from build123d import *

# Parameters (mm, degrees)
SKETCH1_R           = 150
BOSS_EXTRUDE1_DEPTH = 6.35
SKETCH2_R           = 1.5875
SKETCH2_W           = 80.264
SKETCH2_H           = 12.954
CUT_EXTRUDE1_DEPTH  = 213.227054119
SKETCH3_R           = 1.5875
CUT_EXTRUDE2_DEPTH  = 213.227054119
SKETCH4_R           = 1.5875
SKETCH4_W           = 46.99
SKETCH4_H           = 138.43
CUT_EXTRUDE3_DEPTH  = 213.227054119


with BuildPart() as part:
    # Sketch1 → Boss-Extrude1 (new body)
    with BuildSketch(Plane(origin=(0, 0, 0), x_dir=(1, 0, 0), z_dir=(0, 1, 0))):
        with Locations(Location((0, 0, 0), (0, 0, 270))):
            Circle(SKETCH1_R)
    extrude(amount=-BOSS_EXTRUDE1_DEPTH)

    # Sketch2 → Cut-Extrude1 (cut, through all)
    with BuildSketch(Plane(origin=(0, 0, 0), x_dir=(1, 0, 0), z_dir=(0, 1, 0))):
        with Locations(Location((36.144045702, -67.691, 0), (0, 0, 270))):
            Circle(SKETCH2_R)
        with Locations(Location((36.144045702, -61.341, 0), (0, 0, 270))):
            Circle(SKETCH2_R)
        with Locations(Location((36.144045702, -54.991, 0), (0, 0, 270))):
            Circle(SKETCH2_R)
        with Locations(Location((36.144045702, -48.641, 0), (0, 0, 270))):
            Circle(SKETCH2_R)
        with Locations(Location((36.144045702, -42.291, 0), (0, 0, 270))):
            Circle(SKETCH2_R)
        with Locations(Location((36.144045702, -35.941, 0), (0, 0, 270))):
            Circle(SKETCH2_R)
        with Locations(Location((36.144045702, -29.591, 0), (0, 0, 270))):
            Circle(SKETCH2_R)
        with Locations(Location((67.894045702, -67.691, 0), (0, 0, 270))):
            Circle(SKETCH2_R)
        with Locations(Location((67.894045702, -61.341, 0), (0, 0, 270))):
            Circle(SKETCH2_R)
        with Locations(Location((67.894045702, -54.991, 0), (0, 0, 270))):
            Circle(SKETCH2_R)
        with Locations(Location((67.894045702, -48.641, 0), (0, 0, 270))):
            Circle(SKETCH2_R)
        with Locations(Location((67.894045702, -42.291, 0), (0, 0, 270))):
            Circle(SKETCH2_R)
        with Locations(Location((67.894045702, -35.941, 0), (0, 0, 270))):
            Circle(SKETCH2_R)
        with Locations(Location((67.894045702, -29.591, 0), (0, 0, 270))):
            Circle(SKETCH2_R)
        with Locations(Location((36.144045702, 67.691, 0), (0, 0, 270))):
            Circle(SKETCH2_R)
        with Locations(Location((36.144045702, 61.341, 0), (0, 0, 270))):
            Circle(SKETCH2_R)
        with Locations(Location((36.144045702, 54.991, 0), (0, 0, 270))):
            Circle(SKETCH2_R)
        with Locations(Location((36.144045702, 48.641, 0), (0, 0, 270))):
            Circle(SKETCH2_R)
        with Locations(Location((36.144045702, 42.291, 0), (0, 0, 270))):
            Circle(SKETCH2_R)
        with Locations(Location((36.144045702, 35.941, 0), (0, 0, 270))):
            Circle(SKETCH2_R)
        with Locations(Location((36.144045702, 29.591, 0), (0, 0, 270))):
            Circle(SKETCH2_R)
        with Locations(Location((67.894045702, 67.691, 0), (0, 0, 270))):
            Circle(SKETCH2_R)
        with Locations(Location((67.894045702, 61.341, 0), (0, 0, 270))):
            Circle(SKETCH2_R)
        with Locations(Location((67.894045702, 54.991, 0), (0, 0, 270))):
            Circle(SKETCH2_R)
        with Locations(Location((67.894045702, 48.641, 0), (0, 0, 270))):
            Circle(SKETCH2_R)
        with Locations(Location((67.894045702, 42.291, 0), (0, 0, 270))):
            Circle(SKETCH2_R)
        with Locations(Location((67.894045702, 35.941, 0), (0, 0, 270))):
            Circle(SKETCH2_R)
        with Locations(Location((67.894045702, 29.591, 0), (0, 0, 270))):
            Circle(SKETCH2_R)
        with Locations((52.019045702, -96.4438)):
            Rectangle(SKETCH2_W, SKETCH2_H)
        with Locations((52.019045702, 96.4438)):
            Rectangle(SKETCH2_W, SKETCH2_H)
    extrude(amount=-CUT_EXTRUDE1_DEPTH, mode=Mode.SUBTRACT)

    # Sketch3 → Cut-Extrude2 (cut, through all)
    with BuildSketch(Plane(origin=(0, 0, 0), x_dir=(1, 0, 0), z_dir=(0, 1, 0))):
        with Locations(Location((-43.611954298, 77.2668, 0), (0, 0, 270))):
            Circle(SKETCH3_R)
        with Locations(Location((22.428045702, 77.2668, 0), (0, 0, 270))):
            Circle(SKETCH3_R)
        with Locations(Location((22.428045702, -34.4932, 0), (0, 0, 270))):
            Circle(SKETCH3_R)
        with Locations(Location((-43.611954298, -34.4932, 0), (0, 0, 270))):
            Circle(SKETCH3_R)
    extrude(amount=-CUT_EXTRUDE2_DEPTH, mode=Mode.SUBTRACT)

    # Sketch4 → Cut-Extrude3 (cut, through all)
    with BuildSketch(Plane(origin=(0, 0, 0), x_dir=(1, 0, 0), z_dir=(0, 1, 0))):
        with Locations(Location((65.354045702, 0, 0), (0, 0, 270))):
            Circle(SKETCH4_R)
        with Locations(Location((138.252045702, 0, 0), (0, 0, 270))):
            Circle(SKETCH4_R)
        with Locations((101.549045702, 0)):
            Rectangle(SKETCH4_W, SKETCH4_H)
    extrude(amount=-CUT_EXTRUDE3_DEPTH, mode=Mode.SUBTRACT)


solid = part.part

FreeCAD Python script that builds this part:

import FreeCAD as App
import Part
import Sketcher
from FreeCAD import Vector
Q = App.Units.Quantity


def add_polygon(sketch, points):
    """Adds a closed chain of lines whose ends are joined by coincident constraints."""
    first, n = sketch.GeometryCount, len(points)
    for a, b in zip(points, points[1:] + points[:1]):
        sketch.addGeometry(Part.LineSegment(App.Vector(*a, 0), App.Vector(*b, 0)), False)
    for i in range(n):
        sketch.addConstraint(Sketcher.Constraint("Coincident", first + i, 2, first + (i + 1) % n, 1))

doc = App.newDocument("Part")
body = doc.addObject("PartDesign::Body", "Body")

sketch1 = body.newObject("Sketcher::SketchObject", "Sketch")
sketch1.AttachmentSupport = (doc.getObject("XZ_Plane"), [""])
sketch1.MapMode = "FlatFace"
sketch1.addGeometry(Part.Circle(Vector(0, 0, 0), Vector(0, 0, 1), 150), False)
sketch1.addConstraint([
    Sketcher.Constraint("Coincident", 0, 3, -1, 1),
    Sketcher.Constraint("Diameter", 0, 300.0),
])
pad1 = body.newObject("PartDesign::Pad", "Pad")
pad1.Profile = sketch1
pad1.Length = Q("0.25 in")

sketch2 = body.newObject("Sketcher::SketchObject", "Sketch001")
sketch2.AttachmentSupport = (doc.getObject("XZ_Plane"), [""])
sketch2.MapMode = "FlatFace"
sketch2.addGeometry(Part.Circle(Vector(36.1, 67.7, 0), Vector(0, 0, 1), 1.6), False)
sketch2.addGeometry(Part.Circle(Vector(36.1, 61.3, 0), Vector(0, 0, 1), 1.6), False)
sketch2.addGeometry(Part.Circle(Vector(36.1, 55, 0), Vector(0, 0, 1), 1.6), False)
sketch2.addGeometry(Part.Circle(Vector(36.1, 48.6, 0), Vector(0, 0, 1), 1.6), False)
sketch2.addGeometry(Part.Circle(Vector(36.1, 42.3, 0), Vector(0, 0, 1), 1.6), False)
sketch2.addGeometry(Part.Circle(Vector(36.1, 35.9, 0), Vector(0, 0, 1), 1.6), False)
sketch2.addGeometry(Part.Circle(Vector(36.1, 29.6, 0), Vector(0, 0, 1), 1.6), False)
sketch2.addGeometry(Part.Circle(Vector(67.9, 67.7, 0), Vector(0, 0, 1), 1.6), False)
sketch2.addGeometry(Part.Circle(Vector(67.9, 61.3, 0), Vector(0, 0, 1), 1.6), False)
sketch2.addGeometry(Part.Circle(Vector(67.9, 55, 0), Vector(0, 0, 1), 1.6), False)
sketch2.addGeometry(Part.Circle(Vector(67.9, 48.6, 0), Vector(0, 0, 1), 1.6), False)
sketch2.addGeometry(Part.Circle(Vector(67.9, 42.3, 0), Vector(0, 0, 1), 1.6), False)
sketch2.addGeometry(Part.Circle(Vector(67.9, 35.9, 0), Vector(0, 0, 1), 1.6), False)
sketch2.addGeometry(Part.Circle(Vector(67.9, 29.6, 0), Vector(0, 0, 1), 1.6), False)
sketch2.addGeometry(Part.Circle(Vector(36.1, -67.7, 0), Vector(0, 0, 1), 1.6), False)
sketch2.addGeometry(Part.Circle(Vector(36.1, -61.3, 0), Vector(0, 0, 1), 1.6), False)
sketch2.addGeometry(Part.Circle(Vector(36.1, -55, 0), Vector(0, 0, 1), 1.6), False)
sketch2.addGeometry(Part.Circle(Vector(36.1, -48.6, 0), Vector(0, 0, 1), 1.6), False)
sketch2.addGeometry(Part.Circle(Vector(36.1, -42.3, 0), Vector(0, 0, 1), 1.6), False)
sketch2.addGeometry(Part.Circle(Vector(36.1, -35.9, 0), Vector(0, 0, 1), 1.6), False)
sketch2.addGeometry(Part.Circle(Vector(36.1, -29.6, 0), Vector(0, 0, 1), 1.6), False)
sketch2.addGeometry(Part.Circle(Vector(67.9, -67.7, 0), Vector(0, 0, 1), 1.6), False)
sketch2.addGeometry(Part.Circle(Vector(67.9, -61.3, 0), Vector(0, 0, 1), 1.6), False)
sketch2.addGeometry(Part.Circle(Vector(67.9, -55, 0), Vector(0, 0, 1), 1.6), False)
sketch2.addGeometry(Part.Circle(Vector(67.9, -48.6, 0), Vector(0, 0, 1), 1.6), False)
sketch2.addGeometry(Part.Circle(Vector(67.9, -42.3, 0), Vector(0, 0, 1), 1.6), False)
sketch2.addGeometry(Part.Circle(Vector(67.9, -35.9, 0), Vector(0, 0, 1), 1.6), False)
sketch2.addGeometry(Part.Circle(Vector(67.9, -29.6, 0), Vector(0, 0, 1), 1.6), False)
add_polygon(sketch2, [(11.9, 90), (11.9, 102.9), (92.2, 102.9), (92.2, 90)])
add_polygon(sketch2, [(11.9, -102.9), (11.9, -90), (92.2, -90), (92.2, -102.9)])
sketch2.addConstraint([
    Sketcher.Constraint("Vertical", 28),
    Sketcher.Constraint("Horizontal", 29),
    Sketcher.Constraint("Vertical", 30),
    Sketcher.Constraint("Horizontal", 31),
    Sketcher.Constraint("Vertical", 32),
    Sketcher.Constraint("Horizontal", 33),
    Sketcher.Constraint("Vertical", 34),
    Sketcher.Constraint("Horizontal", 35),
    Sketcher.Constraint("Equal", 0, 1),
    Sketcher.Constraint("Equal", 1, 2),
    Sketcher.Constraint("Equal", 2, 3),
    Sketcher.Constraint("Equal", 3, 4),
    Sketcher.Constraint("Equal", 4, 5),
    Sketcher.Constraint("Equal", 5, 6),
    Sketcher.Constraint("Equal", 6, 7),
    Sketcher.Constraint("Equal", 7, 8),
    Sketcher.Constraint("Equal", 8, 9),
    Sketcher.Constraint("Equal", 9, 10),
    Sketcher.Constraint("Equal", 10, 11),
    Sketcher.Constraint("Equal", 11, 12),
    Sketcher.Constraint("Equal", 12, 13),
    Sketcher.Constraint("Equal", 13, 14),
    Sketcher.Constraint("Equal", 14, 15),
    Sketcher.Constraint("Equal", 15, 16),
    Sketcher.Constraint("Equal", 16, 17),
    Sketcher.Constraint("Equal", 17, 18),
    Sketcher.Constraint("Equal", 18, 19),
    Sketcher.Constraint("Equal", 19, 20),
    Sketcher.Constraint("Equal", 20, 21),
    Sketcher.Constraint("Equal", 21, 22),
    Sketcher.Constraint("Equal", 22, 23),
    Sketcher.Constraint("Equal", 23, 24),
    Sketcher.Constraint("Equal", 24, 25),
    Sketcher.Constraint("Equal", 25, 26),
    Sketcher.Constraint("Equal", 26, 27),
    Sketcher.Constraint("Symmetric", 0, 3, 14, 3, -1),
    Sketcher.Constraint("Symmetric", 1, 3, 15, 3, -1),
    Sketcher.Constraint("Symmetric", 2, 3, 16, 3, -1),
    Sketcher.Constraint("Symmetric", 3, 3, 17, 3, -1),
    Sketcher.Constraint("Symmetric", 4, 3, 18, 3, -1),
    Sketcher.Constraint("Symmetric", 5, 3, 19, 3, -1),
    Sketcher.Constraint("Symmetric", 6, 3, 20, 3, -1),
    Sketcher.Constraint("Symmetric", 7, 3, 21, 3, -1),
    Sketcher.Constraint("Symmetric", 8, 3, 22, 3, -1),
    Sketcher.Constraint("Symmetric", 9, 3, 23, 3, -1),
    Sketcher.Constraint("Symmetric", 10, 3, 24, 3, -1),
    Sketcher.Constraint("Symmetric", 11, 3, 25, 3, -1),
    Sketcher.Constraint("Symmetric", 12, 3, 26, 3, -1),
    Sketcher.Constraint("Symmetric", 13, 3, 27, 3, -1),
    Sketcher.Constraint("Symmetric", 31, 2, 32, 2, -1),
    Sketcher.Constraint("Symmetric", 29, 2, 34, 2, -1),
    Sketcher.Constraint("Horizontal", 0, 3, 7, 3),
    Sketcher.Constraint("Horizontal", 1, 3, 8, 3),
    Sketcher.Constraint("Horizontal", 2, 3, 9, 3),
    Sketcher.Constraint("Horizontal", 3, 3, 10, 3),
    Sketcher.Constraint("Horizontal", 4, 3, 11, 3),
    Sketcher.Constraint("Horizontal", 5, 3, 12, 3),
    Sketcher.Constraint("Horizontal", 6, 3, 13, 3),
    Sketcher.Constraint("Vertical", 0, 3, 1, 3),
    Sketcher.Constraint("Vertical", 1, 3, 2, 3),
    Sketcher.Constraint("Vertical", 2, 3, 3, 3),
    Sketcher.Constraint("Vertical", 3, 3, 4, 3),
    Sketcher.Constraint("Vertical", 4, 3, 5, 3),
    Sketcher.Constraint("Vertical", 5, 3, 6, 3),
    Sketcher.Constraint("Vertical", 7, 3, 8, 3),
    Sketcher.Constraint("Vertical", 8, 3, 9, 3),
    Sketcher.Constraint("Vertical", 9, 3, 10, 3),
    Sketcher.Constraint("Vertical", 10, 3, 11, 3),
    Sketcher.Constraint("Vertical", 11, 3, 12, 3),
    Sketcher.Constraint("Vertical", 12, 3, 13, 3),
    Sketcher.Constraint("Diameter", 0, Q("0.125 in")),
    Sketcher.Constraint("DistanceY", 4, 3, 0, 3, Q("1 in")),
    Sketcher.Constraint("DistanceY", 5, 3, 1, 3, Q("1 in")),
    Sketcher.Constraint("DistanceY", 6, 3, 2, 3, Q("1 in")),
    Sketcher.Constraint("DistanceX", 29, 1, 29, 2, Q("3.16 in")),
    Sketcher.Constraint("DistanceY", 28, 1, 28, 2, Q("0.51 in")),
    Sketcher.Constraint("DistanceY", 2, 3, 0, 3, Q("0.5 in")),
    Sketcher.Constraint("DistanceY", 3, 3, 1, 3, Q("0.5 in")),
    Sketcher.Constraint("DistanceY", 1, 3, 0, 3, Q("0.25 in")),
    Sketcher.Constraint("DistanceX", 0, 3, 7, 3, Q("1.25 in")),
    Sketcher.Constraint("DistanceY", 14, 3, 6, 3, Q("3.83 in")),
    Sketcher.Constraint("DistanceY", -1, 1, 28, 2, Q("4.052 in")),
    Sketcher.Constraint("DistanceX", 28, 2, 0, 3, Q("0.955 in")),
    Sketcher.Constraint("DistanceX", -1, 1, 0, 3, 36.144046),
])
pocket1 = body.newObject("PartDesign::Pocket", "Pocket")
pocket1.Profile = sketch2
pocket1.Type = "ThroughAll"
pocket1.Reversed = True

sketch3 = body.newObject("Sketcher::SketchObject", "Sketch002")
sketch3.AttachmentSupport = (doc.getObject("XZ_Plane"), [""])
sketch3.MapMode = "FlatFace"
sketch3.addGeometry([
    Part.Circle(Vector(-43.6, -77.3, 0), Vector(0, 0, 1), 1.6),
    Part.Circle(Vector(22.4, -77.3, 0), Vector(0, 0, 1), 1.6),
    Part.Circle(Vector(22.4, 34.5, 0), Vector(0, 0, 1), 1.6),
    Part.Circle(Vector(-43.6, 34.5, 0), Vector(0, 0, 1), 1.6),
], False)
sketch3.addConstraint([
    Sketcher.Constraint("Equal", 0, 1),
    Sketcher.Constraint("Equal", 1, 2),
    Sketcher.Constraint("Equal", 2, 3),
    Sketcher.Constraint("Horizontal", 0, 3, 1, 3),
    Sketcher.Constraint("Horizontal", 2, 3, 3, 3),
    Sketcher.Constraint("Vertical", 1, 3, 2, 3),
    Sketcher.Constraint("Vertical", 0, 3, 3, 3),
    Sketcher.Constraint("Diameter", 0, Q("0.125 in")),
    Sketcher.Constraint("DistanceX", 0, 3, 1, 3, Q("2.6 in")),
    Sketcher.Constraint("DistanceY", 1, 3, 2, 3, Q("4.4 in")),
    Sketcher.Constraint("DistanceY", 0, 3, -1, 1, Q("3.042 in")),
    Sketcher.Constraint("DistanceX", 0, 3, -1, 1, 43.611954),
])
pocket2 = body.newObject("PartDesign::Pocket", "Pocket001")
pocket2.Profile = sketch3
pocket2.Type = "ThroughAll"
pocket2.Reversed = True

sketch4 = body.newObject("Sketcher::SketchObject", "Sketch003")
sketch4.AttachmentSupport = (doc.getObject("XZ_Plane"), [""])
sketch4.MapMode = "FlatFace"
sketch4.addGeometry(Part.Circle(Vector(65.4, 0, 0), Vector(0, 0, 1), 1.6), False)
sketch4.addGeometry(Part.Circle(Vector(138.3, 0, 0), Vector(0, 0, 1), 1.6), False)
add_polygon(sketch4, [(78.1, -69.2), (78.1, 69.2), (125, 69.2), (125, -69.2)])
sketch4.addConstraint([
    Sketcher.Constraint("Vertical", 2),
    Sketcher.Constraint("Horizontal", 3),
    Sketcher.Constraint("Vertical", 4),
    Sketcher.Constraint("Horizontal", 5),
    Sketcher.Constraint("Equal", 0, 1),
    Sketcher.Constraint("PointOnObject", 0, 3, -1),
    Sketcher.Constraint("PointOnObject", 1, 3, -1),
    Sketcher.Constraint("Diameter", 0, Q("0.125 in")),
    Sketcher.Constraint("DistanceX", 3, 1, 3, 2, Q("1.85 in")),
    Sketcher.Constraint("DistanceY", 2, 1, 2, 2, Q("5.45 in")),
    Sketcher.Constraint("DistanceX", 0, 3, 2, 2, Q("0.5 in")),
    Sketcher.Constraint("DistanceX", 0, 3, 1, 3, Q("2.87 in")),
    Sketcher.Constraint("DistanceY", -1, 1, 2, 2, Q("2.725 in")),
    Sketcher.Constraint("DistanceX", -1, 1, 0, 3, 65.354046),
])
pocket3 = body.newObject("PartDesign::Pocket", "Pocket002")
pocket3.Profile = sketch4
pocket3.Type = "ThroughAll"
pocket3.Reversed = True

doc.recompute()
